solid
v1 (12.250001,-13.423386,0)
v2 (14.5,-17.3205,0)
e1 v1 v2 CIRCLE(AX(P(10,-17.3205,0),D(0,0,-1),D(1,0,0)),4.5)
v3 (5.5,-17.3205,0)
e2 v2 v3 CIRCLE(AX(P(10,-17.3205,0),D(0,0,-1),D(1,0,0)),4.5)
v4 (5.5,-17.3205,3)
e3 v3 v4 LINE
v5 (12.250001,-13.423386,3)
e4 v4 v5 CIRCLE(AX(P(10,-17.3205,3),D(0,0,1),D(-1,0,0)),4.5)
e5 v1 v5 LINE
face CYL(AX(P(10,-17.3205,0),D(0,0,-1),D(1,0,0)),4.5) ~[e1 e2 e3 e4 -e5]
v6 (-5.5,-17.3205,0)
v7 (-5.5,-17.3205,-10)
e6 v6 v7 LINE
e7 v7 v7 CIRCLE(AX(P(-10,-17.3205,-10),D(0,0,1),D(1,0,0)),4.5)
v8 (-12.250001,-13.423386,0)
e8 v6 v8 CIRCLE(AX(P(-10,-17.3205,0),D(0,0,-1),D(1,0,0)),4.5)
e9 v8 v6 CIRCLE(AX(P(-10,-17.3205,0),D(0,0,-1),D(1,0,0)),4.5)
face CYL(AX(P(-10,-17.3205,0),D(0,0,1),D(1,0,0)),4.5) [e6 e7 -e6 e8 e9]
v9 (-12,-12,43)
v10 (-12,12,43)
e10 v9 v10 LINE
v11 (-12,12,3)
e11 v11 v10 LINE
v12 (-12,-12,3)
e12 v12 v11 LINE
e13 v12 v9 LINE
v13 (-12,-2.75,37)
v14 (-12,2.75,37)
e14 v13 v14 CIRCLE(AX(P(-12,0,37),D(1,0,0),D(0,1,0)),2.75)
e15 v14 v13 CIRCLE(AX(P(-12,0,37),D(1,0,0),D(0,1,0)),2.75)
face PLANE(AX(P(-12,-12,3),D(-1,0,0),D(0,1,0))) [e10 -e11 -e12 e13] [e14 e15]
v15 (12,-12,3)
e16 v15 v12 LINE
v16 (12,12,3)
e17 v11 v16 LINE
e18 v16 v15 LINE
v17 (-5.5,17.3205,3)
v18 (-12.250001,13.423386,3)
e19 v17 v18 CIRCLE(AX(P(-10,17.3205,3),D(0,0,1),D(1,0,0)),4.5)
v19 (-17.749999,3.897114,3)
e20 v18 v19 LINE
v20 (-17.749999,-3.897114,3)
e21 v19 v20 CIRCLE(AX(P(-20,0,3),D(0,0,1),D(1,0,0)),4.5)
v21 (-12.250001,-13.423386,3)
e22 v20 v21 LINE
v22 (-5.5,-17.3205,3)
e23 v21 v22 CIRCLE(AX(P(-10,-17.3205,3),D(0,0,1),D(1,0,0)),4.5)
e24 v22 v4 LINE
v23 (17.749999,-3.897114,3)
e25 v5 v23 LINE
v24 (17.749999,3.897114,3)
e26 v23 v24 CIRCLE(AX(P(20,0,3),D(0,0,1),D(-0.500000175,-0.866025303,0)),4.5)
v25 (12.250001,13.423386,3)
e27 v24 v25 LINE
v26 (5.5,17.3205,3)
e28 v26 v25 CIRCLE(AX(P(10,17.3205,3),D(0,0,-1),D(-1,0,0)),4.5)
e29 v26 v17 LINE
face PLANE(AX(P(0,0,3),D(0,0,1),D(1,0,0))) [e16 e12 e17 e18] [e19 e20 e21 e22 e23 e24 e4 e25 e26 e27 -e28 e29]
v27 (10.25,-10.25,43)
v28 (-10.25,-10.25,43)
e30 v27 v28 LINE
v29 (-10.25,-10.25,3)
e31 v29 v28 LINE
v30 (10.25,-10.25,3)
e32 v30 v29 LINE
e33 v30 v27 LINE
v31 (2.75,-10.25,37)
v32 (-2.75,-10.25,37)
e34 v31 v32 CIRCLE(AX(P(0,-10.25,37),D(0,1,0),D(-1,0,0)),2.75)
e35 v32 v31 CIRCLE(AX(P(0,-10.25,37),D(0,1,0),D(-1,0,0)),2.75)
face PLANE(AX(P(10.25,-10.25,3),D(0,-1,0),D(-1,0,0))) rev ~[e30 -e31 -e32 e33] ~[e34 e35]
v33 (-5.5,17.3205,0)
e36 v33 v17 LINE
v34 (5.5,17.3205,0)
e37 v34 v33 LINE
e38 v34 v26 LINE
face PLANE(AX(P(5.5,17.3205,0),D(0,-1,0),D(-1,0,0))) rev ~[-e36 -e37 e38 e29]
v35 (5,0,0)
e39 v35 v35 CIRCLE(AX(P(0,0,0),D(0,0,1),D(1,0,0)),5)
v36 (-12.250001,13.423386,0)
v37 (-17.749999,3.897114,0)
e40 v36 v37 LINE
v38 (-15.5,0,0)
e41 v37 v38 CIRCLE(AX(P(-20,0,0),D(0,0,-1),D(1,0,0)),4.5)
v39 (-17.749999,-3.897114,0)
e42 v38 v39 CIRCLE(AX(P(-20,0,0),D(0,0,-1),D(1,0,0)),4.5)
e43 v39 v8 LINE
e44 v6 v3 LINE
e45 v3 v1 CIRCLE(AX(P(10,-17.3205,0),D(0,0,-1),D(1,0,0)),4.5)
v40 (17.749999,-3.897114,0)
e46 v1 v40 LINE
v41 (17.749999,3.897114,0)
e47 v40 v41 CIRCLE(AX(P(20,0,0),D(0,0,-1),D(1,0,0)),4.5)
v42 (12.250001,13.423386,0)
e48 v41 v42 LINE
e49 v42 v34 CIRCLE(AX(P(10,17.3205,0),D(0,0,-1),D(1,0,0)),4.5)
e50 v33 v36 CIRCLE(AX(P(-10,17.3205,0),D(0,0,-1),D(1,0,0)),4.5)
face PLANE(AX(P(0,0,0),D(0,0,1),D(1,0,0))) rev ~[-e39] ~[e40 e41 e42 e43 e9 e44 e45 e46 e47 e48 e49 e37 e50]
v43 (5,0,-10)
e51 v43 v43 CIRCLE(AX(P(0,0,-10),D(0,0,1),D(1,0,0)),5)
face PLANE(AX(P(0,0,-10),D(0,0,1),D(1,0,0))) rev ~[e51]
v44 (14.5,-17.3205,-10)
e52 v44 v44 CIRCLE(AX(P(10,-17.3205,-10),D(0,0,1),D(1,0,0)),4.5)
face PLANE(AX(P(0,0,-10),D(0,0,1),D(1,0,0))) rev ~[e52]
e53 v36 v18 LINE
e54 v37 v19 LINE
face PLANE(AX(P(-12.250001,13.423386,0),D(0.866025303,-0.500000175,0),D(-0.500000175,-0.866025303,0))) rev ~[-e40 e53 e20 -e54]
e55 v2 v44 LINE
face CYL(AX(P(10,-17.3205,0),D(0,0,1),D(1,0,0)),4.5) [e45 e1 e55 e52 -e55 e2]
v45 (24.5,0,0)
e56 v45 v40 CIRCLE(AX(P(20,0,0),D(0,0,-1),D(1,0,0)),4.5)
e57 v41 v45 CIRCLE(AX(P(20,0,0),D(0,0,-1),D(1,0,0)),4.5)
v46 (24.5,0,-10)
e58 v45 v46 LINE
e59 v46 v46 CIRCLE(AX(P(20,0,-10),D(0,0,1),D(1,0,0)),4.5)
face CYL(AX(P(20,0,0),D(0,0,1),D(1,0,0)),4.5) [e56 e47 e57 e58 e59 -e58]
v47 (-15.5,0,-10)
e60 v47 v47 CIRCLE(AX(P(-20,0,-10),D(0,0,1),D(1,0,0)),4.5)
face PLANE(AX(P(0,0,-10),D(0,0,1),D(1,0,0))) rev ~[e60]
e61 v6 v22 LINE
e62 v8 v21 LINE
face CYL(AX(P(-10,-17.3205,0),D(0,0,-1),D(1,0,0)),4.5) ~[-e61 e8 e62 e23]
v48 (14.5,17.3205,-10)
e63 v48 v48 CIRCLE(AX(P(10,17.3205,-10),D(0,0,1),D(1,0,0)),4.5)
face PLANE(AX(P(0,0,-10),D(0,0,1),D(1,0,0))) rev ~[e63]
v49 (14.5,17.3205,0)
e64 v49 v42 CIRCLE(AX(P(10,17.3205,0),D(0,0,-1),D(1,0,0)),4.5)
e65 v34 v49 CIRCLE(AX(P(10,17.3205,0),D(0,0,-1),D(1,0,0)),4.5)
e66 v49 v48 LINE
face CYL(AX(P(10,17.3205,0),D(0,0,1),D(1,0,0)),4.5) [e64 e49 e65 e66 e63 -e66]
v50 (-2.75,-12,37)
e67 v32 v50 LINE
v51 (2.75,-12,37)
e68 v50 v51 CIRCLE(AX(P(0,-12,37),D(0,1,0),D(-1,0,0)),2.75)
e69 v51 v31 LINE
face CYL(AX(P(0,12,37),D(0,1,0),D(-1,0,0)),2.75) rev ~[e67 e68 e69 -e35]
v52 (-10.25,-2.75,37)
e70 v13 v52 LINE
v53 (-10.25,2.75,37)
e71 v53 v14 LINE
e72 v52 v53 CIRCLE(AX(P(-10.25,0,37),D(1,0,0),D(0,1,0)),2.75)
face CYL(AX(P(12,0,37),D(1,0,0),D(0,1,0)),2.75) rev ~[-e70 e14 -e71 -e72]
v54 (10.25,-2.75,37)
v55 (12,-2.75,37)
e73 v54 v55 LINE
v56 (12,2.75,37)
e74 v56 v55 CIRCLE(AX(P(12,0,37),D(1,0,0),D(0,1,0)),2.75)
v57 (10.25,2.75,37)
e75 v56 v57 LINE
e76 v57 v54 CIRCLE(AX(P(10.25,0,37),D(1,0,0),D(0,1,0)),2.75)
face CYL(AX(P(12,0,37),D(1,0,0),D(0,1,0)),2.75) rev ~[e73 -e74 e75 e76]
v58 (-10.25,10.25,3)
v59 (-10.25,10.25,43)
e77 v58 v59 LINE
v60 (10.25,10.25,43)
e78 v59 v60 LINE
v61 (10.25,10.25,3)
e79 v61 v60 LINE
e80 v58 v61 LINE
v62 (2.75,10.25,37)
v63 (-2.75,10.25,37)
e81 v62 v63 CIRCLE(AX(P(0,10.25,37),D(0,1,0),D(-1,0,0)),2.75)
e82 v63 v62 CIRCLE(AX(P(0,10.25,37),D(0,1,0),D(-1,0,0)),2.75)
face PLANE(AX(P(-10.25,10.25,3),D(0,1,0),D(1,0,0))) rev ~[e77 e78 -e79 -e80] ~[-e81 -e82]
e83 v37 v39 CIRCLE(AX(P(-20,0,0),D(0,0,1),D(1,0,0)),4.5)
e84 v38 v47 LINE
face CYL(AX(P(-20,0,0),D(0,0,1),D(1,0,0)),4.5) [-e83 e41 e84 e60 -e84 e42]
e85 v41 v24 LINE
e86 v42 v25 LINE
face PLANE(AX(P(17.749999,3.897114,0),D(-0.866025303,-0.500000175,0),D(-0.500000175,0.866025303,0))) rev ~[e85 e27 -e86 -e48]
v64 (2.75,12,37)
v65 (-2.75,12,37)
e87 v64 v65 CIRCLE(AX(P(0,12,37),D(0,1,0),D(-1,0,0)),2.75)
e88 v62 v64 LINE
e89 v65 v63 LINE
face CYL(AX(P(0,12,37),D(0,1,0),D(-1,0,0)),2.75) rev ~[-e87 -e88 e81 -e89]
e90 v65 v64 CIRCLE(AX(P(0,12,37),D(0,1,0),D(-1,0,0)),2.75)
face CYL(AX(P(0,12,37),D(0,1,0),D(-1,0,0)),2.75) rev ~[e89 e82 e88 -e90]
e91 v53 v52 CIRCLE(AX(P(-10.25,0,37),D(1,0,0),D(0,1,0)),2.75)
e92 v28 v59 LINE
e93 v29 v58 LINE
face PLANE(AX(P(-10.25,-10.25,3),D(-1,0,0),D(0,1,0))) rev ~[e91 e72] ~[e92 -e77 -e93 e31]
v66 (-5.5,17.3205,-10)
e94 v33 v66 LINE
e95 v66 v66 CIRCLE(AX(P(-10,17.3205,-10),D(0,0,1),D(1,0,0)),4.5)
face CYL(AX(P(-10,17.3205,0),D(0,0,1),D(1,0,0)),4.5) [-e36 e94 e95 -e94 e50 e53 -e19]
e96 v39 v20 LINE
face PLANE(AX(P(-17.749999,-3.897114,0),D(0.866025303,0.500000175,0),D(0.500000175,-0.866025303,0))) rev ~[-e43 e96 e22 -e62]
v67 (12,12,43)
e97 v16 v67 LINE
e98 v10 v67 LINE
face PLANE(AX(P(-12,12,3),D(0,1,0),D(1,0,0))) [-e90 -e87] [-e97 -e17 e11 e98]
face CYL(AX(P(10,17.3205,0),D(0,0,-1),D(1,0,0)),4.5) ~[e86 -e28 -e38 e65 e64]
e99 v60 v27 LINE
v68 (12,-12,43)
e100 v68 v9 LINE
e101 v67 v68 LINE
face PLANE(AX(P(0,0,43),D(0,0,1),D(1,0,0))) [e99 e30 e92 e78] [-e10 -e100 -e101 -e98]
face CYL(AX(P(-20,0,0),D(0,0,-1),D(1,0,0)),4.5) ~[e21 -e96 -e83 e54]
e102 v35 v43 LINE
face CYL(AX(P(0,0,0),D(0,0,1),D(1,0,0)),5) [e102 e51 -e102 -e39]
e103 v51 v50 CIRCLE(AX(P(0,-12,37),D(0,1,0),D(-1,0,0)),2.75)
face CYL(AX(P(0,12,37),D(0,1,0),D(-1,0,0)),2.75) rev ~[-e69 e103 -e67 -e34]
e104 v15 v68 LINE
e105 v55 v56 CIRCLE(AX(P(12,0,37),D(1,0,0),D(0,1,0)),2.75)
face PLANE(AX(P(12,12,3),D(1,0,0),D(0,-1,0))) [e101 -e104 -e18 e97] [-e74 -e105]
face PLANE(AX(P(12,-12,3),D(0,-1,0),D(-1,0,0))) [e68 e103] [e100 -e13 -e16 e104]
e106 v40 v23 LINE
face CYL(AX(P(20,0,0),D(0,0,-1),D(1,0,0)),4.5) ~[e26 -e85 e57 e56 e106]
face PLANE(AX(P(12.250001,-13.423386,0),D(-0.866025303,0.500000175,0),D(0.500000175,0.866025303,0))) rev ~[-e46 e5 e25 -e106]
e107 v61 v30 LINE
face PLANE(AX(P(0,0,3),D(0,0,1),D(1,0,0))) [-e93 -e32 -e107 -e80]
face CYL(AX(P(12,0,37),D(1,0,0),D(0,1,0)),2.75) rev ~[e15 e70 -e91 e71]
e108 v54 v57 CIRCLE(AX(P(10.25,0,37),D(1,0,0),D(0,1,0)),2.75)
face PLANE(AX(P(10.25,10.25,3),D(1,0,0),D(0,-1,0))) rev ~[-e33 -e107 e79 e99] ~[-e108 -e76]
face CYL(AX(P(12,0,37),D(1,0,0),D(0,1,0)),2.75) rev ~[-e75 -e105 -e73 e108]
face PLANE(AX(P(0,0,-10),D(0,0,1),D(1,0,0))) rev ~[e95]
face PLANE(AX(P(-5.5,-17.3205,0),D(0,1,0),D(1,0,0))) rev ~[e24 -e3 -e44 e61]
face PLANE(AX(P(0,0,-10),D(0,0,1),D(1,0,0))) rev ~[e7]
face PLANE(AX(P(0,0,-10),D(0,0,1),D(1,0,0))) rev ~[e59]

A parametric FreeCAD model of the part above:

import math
import FreeCAD as App
import Part
import Sketcher

V = App.Vector
Q = App.Units.Quantity

doc = App.newDocument("Part")
body = doc.addObject("PartDesign::Body", "Body")
body.AllowCompound = True

sketch1 = doc.addObject("Sketcher::SketchObject", "Sketch")
body.addObject(sketch1)
sketch1.AttachmentSupport = (doc.XY_Plane, [""])
sketch1.MapMode = "FlatFace"
sketch1.addGeometry(Part.Circle(V(0, 0, 0), V(0, 0, 1), 5), False)
sketch1.addGeometry(Part.Circle(V(-10, 17.3, 0), V(0, 0, 1), 4.5), False)
sketch1.addGeometry(Part.Circle(V(10, 17.3, 0), V(0, 0, 1), 4.5), False)
sketch1.addGeometry(Part.Circle(V(-20, 0, 0), V(0, 0, 1), 4.5), False)
sketch1.addGeometry(Part.Circle(V(20, 0, 0), V(0, 0, 1), 4.5), False)
sketch1.addGeometry(Part.Circle(V(-10, -17.3, 0), V(0, 0, 1), 4.5), False)
sketch1.addGeometry(Part.Circle(V(10, -17.3, 0), V(0, 0, 1), 4.5), False)
sketch1.addConstraint(Sketcher.Constraint("Coincident", 0, 3, -1, 1))
sketch1.addConstraint(Sketcher.Constraint("Equal", 1, 2))
sketch1.addConstraint(Sketcher.Constraint("Equal", 2, 3))
sketch1.addConstraint(Sketcher.Constraint("Equal", 3, 4))
sketch1.addConstraint(Sketcher.Constraint("Equal", 4, 5))
sketch1.addConstraint(Sketcher.Constraint("Equal", 5, 6))
sketch1.addConstraint(Sketcher.Constraint("Symmetric", 3, 3, 4, 3, -1, 1))
sketch1.addConstraint(Sketcher.Constraint("Symmetric", 2, 3, 5, 3, -1, 1))
sketch1.addConstraint(Sketcher.Constraint("Symmetric", 1, 3, 6, 3, -1, 1))
sketch1.addConstraint(Sketcher.Constraint("Symmetric", 1, 3, 2, 3, -2))
sketch1.addConstraint(Sketcher.Constraint("PointOnObject", 3, 3, -1))
sketch1.addConstraint(Sketcher.Constraint("Diameter", 0, Q("10 mm")))
sketch1.addConstraint(Sketcher.Constraint("Diameter", 1, Q("9 mm")))
sketch1.addConstraint(Sketcher.Constraint("DistanceX", 1, 3, -1, 1, Q("10 mm")))
sketch1.addConstraint(Sketcher.Constraint("DistanceX", 3, 3, -1, 1, Q("20 mm")))
sketch1.addConstraint(Sketcher.Constraint("DistanceY", 5, 3, 1, 3, Q("34.641 mm")))
pad1 = doc.addObject("PartDesign::Pad", "Pad")
body.addObject(pad1)
pad1.Profile = sketch1
pad1.Length = 10
pad1.Reversed = True

sketch2 = doc.addObject("Sketcher::SketchObject", "Sketch001")
body.addObject(sketch2)
sketch2.AttachmentSupport = (doc.XY_Plane, [""])
sketch2.MapMode = "FlatFace"
sketch2.addGeometry(Part.LineSegment(V(5.5, 17.3, 0), V(-5.5, 17.3, 0)), False)
sketch2.addGeometry(Part.ArcOfCircle(Part.Circle(V(-10, 17.3, 0), V(0, 0, 1), 4.5), math.radians(0), math.radians(240)), False)
sketch2.addGeometry(Part.LineSegment(V(-12.3, 13.4, 0), V(-17.7, 3.9, 0)), False)
sketch2.addGeometry(Part.ArcOfCircle(Part.Circle(V(-20, 0, 0), V(0, 0, 1), 4.5), math.radians(60), math.radians(300)), False)
sketch2.addGeometry(Part.LineSegment(V(-17.7, -3.9, 0), V(-12.3, -13.4, 0)), False)
sketch2.addGeometry(Part.ArcOfCircle(Part.Circle(V(-10, -17.3, 0), V(0, 0, 1), 4.5), math.radians(120), math.radians(360)), False)
sketch2.addGeometry(Part.LineSegment(V(-5.5, -17.3, 0), V(5.5, -17.3, 0)), False)
sketch2.addGeometry(Part.ArcOfCircle(Part.Circle(V(10, -17.3, 0), V(0, 0, 1), 4.5), math.radians(180), math.radians(420)), False)
sketch2.addGeometry(Part.LineSegment(V(12.3, -13.4, 0), V(17.7, -3.9, 0)), False)
sketch2.addGeometry(Part.ArcOfCircle(Part.Circle(V(20, 0, 0), V(0, 0, 1), 4.5), math.radians(-120), math.radians(120)), False)
sketch2.addGeometry(Part.LineSegment(V(17.7, 3.9, 0), V(12.3, 13.4, 0)), False)
sketch2.addGeometry(Part.ArcOfCircle(Part.Circle(V(10, 17.3, 0), V(0, 0, 1), 4.5), math.radians(-60), math.radians(180)), False)
sketch2.addConstraint(Sketcher.Constraint("Coincident", 0, 2, 1, 1))
sketch2.addConstraint(Sketcher.Constraint("Coincident", 1, 2, 2, 1))
sketch2.addConstraint(Sketcher.Constraint("Coincident", 2, 2, 3, 1))
sketch2.addConstraint(Sketcher.Constraint("Coincident", 3, 2, 4, 1))
sketch2.addConstraint(Sketcher.Constraint("Coincident", 4, 2, 5, 1))
sketch2.addConstraint(Sketcher.Constraint("Coincident", 5, 2, 6, 1))
sketch2.addConstraint(Sketcher.Constraint("Coincident", 6, 2, 7, 1))
sketch2.addConstraint(Sketcher.Constraint("Coincident", 7, 2, 8, 1))
sketch2.addConstraint(Sketcher.Constraint("Coincident", 8, 2, 9, 1))
sketch2.addConstraint(Sketcher.Constraint("Coincident", 9, 2, 10, 1))
sketch2.addConstraint(Sketcher.Constraint("Coincident", 10, 2, 11, 1))
sketch2.addConstraint(Sketcher.Constraint("Coincident", 11, 2, 0, 1))
sketch2.addConstraint(Sketcher.Constraint("Horizontal", 0))
sketch2.addConstraint(Sketcher.Constraint("Horizontal", 6))
sketch2.addConstraint(Sketcher.Constraint("Equal", 1, 3))
sketch2.addConstraint(Sketcher.Constraint("Equal", 3, 5))
sketch2.addConstraint(Sketcher.Constraint("Equal", 5, 7))
sketch2.addConstraint(Sketcher.Constraint("Equal", 7, 9))
sketch2.addConstraint(Sketcher.Constraint("Equal", 9, 11))
sketch2.addConstraint(Sketcher.Constraint("Symmetric", 1, 3, 7, 3, -1, 1))
sketch2.addConstraint(Sketcher.Constraint("Symmetric", 3, 3, 9, 3, -1, 1))
sketch2.addConstraint(Sketcher.Constraint("Symmetric", 5, 3, 11, 3, -1, 1))
sketch2.addConstraint(Sketcher.Constraint("Symmetric", 5, 3, 7, 3, -2))
sketch2.addConstraint(Sketcher.Constraint("Symmetric", 3, 2, 8, 2, -2))
sketch2.addConstraint(Sketcher.Constraint("Parallel", 2, 8))
sketch2.addConstraint(Sketcher.Constraint("Parallel", 4, 10))
sketch2.addConstraint(Sketcher.Constraint("Horizontal", 11, 3, 0, 2))
sketch2.addConstraint(Sketcher.Constraint("Horizontal", 7, 3, 5, 2))
sketch2.addConstraint(Sketcher.Constraint("Horizontal", 4, 2, 7, 2))
sketch2.addConstraint(Sketcher.Constraint("Horizontal", 2, 2, 9, 2))
sketch2.addConstraint(Sketcher.Constraint("Vertical", 2, 2, 3, 2))
sketch2.addConstraint(Sketcher.Constraint("Radius", 1, Q("4.5 mm")))
sketch2.addConstraint(Sketcher.Constraint("DistanceX", 1, 3, -1, 1, Q("10 mm")))
sketch2.addConstraint(Sketcher.Constraint("DistanceX", 3, 3, -1, 1, Q("20 mm")))
sketch2.addConstraint(Sketcher.Constraint("Angle", 2, Q("-120 deg")))
sketch2.addConstraint(Sketcher.Constraint("Distance", 2, Q("11 mm")))
sketch2.addConstraint(Sketcher.Constraint("DistanceX", 1, 2, -1, 1, Q("12.25 mm")))
pad2 = doc.addObject("PartDesign::Pad", "Pad001")
body.addObject(pad2)
pad2.Profile = sketch2
pad2.Length = 3

sketch3 = doc.addObject("Sketcher::SketchObject", "Sketch002")
body.addObject(sketch3)
sketch3.AttachmentSupport = (doc.XY_Plane, [""])
sketch3.MapMode = "FlatFace"
sketch3.AttachmentOffset = App.Placement(V(0, 0, 3), App.Rotation())
sketch3.addGeometry(Part.LineSegment(V(-12, -12, 0), V(12, -12, 0)), False)
sketch3.addGeometry(Part.LineSegment(V(12, -12, 0), V(12, 12, 0)), False)
sketch3.addGeometry(Part.LineSegment(V(12, 12, 0), V(-12, 12, 0)), False)
sketch3.addGeometry(Part.LineSegment(V(-12, 12, 0), V(-12, -12, 0)), False)
sketch3.addGeometry(Part.LineSegment(V(10, 10, 0), V(10, -10, 0)), False)
sketch3.addGeometry(Part.LineSegment(V(10, -10, 0), V(-10, -10, 0)), False)
sketch3.addGeometry(Part.LineSegment(V(-10, -10, 0), V(-10, 10, 0)), False)
sketch3.addGeometry(Part.LineSegment(V(-10, 10, 0), V(10, 10, 0)), False)
sketch3.addConstraint(Sketcher.Constraint("Coincident", 0, 2, 1, 1))
sketch3.addConstraint(Sketcher.Constraint("Coincident", 1, 2, 2, 1))
sketch3.addConstraint(Sketcher.Constraint("Coincident", 2, 2, 3, 1))
sketch3.addConstraint(Sketcher.Constraint("Coincident", 3, 2, 0, 1))
sketch3.addConstraint(Sketcher.Constraint("Coincident", 4, 2, 5, 1))
sketch3.addConstraint(Sketcher.Constraint("Coincident", 5, 2, 6, 1))
sketch3.addConstraint(Sketcher.Constraint("Coincident", 6, 2, 7, 1))
sketch3.addConstraint(Sketcher.Constraint("Coincident", 7, 2, 4, 1))
sketch3.addConstraint(Sketcher.Constraint("Horizontal", 0))
sketch3.addConstraint(Sketcher.Constraint("Vertical", 1))
sketch3.addConstraint(Sketcher.Constraint("Horizontal", 2))
sketch3.addConstraint(Sketcher.Constraint("Vertical", 3))
sketch3.addConstraint(Sketcher.Constraint("Vertical", 4))
sketch3.addConstraint(Sketcher.Constraint("Horizontal", 5))
sketch3.addConstraint(Sketcher.Constraint("Vertical", 6))
sketch3.addConstraint(Sketcher.Constraint("Horizontal", 7))
sketch3.addConstraint(Sketcher.Constraint("Symmetric", 0, 2, 2, 2, -1, 1))
sketch3.addConstraint(Sketcher.Constraint("Symmetric", 4, 2, 6, 2, -1, 1))
sketch3.addConstraint(Sketcher.Constraint("Equal", 2, 1))
sketch3.addConstraint(Sketcher.Constraint("Equal", 7, 4))
sketch3.addConstraint(Sketcher.Constraint("DistanceX", 0, 1, 0, 2, Q("24 mm")))
sketch3.addConstraint(Sketcher.Constraint("DistanceX", 5, 2, 5, 1, Q("20.5 mm")))
pad3 = doc.addObject("PartDesign::Pad", "Pad002")
body.addObject(pad3)
pad3.Profile = sketch3
pad3.Length = 40

sketch4 = doc.addObject("Sketcher::SketchObject", "Sketch003")
body.addObject(sketch4)
sketch4.AttachmentSupport = (doc.YZ_Plane, [""])
sketch4.MapMode = "FlatFace"
sketch4.AttachmentOffset = App.Placement(V(0, 0, 12), App.Rotation())
sketch4.addGeometry(Part.Circle(V(0, 37, 0), V(0, 0, 1), 2.8), False)
sketch4.addConstraint(Sketcher.Constraint("PointOnObject", 0, 3, -2))
sketch4.addConstraint(Sketcher.Constraint("Diameter", 0, Q("5.5 mm")))
sketch4.addConstraint(Sketcher.Constraint("DistanceY", -1, 1, 0, 3, Q("37 mm")))
pocket1 = doc.addObject("PartDesign::Pocket", "Pocket")
body.addObject(pocket1)
pocket1.Profile = sketch4
pocket1.Length = 31
doc.recompute()

polarpattern = doc.addObject("PartDesign::PolarPattern", "PolarPattern")
body.addObject(polarpattern)
polarpattern.Originals = [pocket1]
polarpattern.Axis = (doc.Z_Axis, [""])
polarpattern.Angle = 360
polarpattern.Occurrences = 4
body.Tip = polarpattern

doc.recompute()
